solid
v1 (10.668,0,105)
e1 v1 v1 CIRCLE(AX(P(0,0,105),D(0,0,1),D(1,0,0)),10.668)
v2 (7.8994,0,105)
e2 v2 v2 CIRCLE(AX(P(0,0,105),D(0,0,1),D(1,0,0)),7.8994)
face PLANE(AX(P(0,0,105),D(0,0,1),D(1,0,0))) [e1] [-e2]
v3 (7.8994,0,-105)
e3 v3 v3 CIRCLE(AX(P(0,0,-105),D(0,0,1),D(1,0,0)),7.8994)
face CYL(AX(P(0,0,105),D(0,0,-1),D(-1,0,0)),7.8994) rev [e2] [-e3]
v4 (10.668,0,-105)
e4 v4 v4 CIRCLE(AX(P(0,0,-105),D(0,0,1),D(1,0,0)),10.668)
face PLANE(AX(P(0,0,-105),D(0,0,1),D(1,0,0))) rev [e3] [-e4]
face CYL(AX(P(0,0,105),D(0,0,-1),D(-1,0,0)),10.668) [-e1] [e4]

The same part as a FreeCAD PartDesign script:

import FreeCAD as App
import Part
import Sketcher
from FreeCAD import Vector
Q = App.Units.Quantity

doc = App.newDocument("Part")
params = doc.addObject("Spreadsheet::Sheet", "Params")
for row, (alias, value) in enumerate([
    ("sketch1_diameter", "0.84 in"),
    ("sketch1_diameter2", "0.622 in"),
    ("pad1_length", "210 mm"),
], start=1):
    params.set(f"A{row}", alias)
    params.set(f"B{row}", "=" + value)
    params.setAlias(f"B{row}", alias)

body = doc.addObject("PartDesign::Body", "Body")

# Sketch on XY plane
sketch1 = body.newObject("Sketcher::SketchObject", "Sketch")
sketch1.AttachmentSupport = (doc.getObject("XY_Plane"), [""])
sketch1.MapMode = "FlatFace"
sketch1.addGeometry([
    Part.Circle(Vector(0, 0, 0), Vector(0, 0, 1), 10.668),
    Part.Circle(Vector(0, 0, 0), Vector(0, 0, 1), 7.8994),
], False)
sketch1.addConstraint([
    Sketcher.Constraint("Coincident", 0, 3, -1, 1),
    Sketcher.Constraint("Coincident", 1, 3, -1, 1),
    Sketcher.Constraint("Diameter", 0, Q("0.84 in")),
    Sketcher.Constraint("Diameter", 1, Q("0.622 in")),
])
sketch1.setExpression("Constraints[2]", "Params.sketch1_diameter")
sketch1.setExpression("Constraints[3]", "Params.sketch1_diameter2")
pad1 = body.newObject("PartDesign::Pad", "Pad")
pad1.Profile = sketch1
pad1.setExpression("Length", "Params.pad1_length")
pad1.Midplane = True

doc.recompute()
